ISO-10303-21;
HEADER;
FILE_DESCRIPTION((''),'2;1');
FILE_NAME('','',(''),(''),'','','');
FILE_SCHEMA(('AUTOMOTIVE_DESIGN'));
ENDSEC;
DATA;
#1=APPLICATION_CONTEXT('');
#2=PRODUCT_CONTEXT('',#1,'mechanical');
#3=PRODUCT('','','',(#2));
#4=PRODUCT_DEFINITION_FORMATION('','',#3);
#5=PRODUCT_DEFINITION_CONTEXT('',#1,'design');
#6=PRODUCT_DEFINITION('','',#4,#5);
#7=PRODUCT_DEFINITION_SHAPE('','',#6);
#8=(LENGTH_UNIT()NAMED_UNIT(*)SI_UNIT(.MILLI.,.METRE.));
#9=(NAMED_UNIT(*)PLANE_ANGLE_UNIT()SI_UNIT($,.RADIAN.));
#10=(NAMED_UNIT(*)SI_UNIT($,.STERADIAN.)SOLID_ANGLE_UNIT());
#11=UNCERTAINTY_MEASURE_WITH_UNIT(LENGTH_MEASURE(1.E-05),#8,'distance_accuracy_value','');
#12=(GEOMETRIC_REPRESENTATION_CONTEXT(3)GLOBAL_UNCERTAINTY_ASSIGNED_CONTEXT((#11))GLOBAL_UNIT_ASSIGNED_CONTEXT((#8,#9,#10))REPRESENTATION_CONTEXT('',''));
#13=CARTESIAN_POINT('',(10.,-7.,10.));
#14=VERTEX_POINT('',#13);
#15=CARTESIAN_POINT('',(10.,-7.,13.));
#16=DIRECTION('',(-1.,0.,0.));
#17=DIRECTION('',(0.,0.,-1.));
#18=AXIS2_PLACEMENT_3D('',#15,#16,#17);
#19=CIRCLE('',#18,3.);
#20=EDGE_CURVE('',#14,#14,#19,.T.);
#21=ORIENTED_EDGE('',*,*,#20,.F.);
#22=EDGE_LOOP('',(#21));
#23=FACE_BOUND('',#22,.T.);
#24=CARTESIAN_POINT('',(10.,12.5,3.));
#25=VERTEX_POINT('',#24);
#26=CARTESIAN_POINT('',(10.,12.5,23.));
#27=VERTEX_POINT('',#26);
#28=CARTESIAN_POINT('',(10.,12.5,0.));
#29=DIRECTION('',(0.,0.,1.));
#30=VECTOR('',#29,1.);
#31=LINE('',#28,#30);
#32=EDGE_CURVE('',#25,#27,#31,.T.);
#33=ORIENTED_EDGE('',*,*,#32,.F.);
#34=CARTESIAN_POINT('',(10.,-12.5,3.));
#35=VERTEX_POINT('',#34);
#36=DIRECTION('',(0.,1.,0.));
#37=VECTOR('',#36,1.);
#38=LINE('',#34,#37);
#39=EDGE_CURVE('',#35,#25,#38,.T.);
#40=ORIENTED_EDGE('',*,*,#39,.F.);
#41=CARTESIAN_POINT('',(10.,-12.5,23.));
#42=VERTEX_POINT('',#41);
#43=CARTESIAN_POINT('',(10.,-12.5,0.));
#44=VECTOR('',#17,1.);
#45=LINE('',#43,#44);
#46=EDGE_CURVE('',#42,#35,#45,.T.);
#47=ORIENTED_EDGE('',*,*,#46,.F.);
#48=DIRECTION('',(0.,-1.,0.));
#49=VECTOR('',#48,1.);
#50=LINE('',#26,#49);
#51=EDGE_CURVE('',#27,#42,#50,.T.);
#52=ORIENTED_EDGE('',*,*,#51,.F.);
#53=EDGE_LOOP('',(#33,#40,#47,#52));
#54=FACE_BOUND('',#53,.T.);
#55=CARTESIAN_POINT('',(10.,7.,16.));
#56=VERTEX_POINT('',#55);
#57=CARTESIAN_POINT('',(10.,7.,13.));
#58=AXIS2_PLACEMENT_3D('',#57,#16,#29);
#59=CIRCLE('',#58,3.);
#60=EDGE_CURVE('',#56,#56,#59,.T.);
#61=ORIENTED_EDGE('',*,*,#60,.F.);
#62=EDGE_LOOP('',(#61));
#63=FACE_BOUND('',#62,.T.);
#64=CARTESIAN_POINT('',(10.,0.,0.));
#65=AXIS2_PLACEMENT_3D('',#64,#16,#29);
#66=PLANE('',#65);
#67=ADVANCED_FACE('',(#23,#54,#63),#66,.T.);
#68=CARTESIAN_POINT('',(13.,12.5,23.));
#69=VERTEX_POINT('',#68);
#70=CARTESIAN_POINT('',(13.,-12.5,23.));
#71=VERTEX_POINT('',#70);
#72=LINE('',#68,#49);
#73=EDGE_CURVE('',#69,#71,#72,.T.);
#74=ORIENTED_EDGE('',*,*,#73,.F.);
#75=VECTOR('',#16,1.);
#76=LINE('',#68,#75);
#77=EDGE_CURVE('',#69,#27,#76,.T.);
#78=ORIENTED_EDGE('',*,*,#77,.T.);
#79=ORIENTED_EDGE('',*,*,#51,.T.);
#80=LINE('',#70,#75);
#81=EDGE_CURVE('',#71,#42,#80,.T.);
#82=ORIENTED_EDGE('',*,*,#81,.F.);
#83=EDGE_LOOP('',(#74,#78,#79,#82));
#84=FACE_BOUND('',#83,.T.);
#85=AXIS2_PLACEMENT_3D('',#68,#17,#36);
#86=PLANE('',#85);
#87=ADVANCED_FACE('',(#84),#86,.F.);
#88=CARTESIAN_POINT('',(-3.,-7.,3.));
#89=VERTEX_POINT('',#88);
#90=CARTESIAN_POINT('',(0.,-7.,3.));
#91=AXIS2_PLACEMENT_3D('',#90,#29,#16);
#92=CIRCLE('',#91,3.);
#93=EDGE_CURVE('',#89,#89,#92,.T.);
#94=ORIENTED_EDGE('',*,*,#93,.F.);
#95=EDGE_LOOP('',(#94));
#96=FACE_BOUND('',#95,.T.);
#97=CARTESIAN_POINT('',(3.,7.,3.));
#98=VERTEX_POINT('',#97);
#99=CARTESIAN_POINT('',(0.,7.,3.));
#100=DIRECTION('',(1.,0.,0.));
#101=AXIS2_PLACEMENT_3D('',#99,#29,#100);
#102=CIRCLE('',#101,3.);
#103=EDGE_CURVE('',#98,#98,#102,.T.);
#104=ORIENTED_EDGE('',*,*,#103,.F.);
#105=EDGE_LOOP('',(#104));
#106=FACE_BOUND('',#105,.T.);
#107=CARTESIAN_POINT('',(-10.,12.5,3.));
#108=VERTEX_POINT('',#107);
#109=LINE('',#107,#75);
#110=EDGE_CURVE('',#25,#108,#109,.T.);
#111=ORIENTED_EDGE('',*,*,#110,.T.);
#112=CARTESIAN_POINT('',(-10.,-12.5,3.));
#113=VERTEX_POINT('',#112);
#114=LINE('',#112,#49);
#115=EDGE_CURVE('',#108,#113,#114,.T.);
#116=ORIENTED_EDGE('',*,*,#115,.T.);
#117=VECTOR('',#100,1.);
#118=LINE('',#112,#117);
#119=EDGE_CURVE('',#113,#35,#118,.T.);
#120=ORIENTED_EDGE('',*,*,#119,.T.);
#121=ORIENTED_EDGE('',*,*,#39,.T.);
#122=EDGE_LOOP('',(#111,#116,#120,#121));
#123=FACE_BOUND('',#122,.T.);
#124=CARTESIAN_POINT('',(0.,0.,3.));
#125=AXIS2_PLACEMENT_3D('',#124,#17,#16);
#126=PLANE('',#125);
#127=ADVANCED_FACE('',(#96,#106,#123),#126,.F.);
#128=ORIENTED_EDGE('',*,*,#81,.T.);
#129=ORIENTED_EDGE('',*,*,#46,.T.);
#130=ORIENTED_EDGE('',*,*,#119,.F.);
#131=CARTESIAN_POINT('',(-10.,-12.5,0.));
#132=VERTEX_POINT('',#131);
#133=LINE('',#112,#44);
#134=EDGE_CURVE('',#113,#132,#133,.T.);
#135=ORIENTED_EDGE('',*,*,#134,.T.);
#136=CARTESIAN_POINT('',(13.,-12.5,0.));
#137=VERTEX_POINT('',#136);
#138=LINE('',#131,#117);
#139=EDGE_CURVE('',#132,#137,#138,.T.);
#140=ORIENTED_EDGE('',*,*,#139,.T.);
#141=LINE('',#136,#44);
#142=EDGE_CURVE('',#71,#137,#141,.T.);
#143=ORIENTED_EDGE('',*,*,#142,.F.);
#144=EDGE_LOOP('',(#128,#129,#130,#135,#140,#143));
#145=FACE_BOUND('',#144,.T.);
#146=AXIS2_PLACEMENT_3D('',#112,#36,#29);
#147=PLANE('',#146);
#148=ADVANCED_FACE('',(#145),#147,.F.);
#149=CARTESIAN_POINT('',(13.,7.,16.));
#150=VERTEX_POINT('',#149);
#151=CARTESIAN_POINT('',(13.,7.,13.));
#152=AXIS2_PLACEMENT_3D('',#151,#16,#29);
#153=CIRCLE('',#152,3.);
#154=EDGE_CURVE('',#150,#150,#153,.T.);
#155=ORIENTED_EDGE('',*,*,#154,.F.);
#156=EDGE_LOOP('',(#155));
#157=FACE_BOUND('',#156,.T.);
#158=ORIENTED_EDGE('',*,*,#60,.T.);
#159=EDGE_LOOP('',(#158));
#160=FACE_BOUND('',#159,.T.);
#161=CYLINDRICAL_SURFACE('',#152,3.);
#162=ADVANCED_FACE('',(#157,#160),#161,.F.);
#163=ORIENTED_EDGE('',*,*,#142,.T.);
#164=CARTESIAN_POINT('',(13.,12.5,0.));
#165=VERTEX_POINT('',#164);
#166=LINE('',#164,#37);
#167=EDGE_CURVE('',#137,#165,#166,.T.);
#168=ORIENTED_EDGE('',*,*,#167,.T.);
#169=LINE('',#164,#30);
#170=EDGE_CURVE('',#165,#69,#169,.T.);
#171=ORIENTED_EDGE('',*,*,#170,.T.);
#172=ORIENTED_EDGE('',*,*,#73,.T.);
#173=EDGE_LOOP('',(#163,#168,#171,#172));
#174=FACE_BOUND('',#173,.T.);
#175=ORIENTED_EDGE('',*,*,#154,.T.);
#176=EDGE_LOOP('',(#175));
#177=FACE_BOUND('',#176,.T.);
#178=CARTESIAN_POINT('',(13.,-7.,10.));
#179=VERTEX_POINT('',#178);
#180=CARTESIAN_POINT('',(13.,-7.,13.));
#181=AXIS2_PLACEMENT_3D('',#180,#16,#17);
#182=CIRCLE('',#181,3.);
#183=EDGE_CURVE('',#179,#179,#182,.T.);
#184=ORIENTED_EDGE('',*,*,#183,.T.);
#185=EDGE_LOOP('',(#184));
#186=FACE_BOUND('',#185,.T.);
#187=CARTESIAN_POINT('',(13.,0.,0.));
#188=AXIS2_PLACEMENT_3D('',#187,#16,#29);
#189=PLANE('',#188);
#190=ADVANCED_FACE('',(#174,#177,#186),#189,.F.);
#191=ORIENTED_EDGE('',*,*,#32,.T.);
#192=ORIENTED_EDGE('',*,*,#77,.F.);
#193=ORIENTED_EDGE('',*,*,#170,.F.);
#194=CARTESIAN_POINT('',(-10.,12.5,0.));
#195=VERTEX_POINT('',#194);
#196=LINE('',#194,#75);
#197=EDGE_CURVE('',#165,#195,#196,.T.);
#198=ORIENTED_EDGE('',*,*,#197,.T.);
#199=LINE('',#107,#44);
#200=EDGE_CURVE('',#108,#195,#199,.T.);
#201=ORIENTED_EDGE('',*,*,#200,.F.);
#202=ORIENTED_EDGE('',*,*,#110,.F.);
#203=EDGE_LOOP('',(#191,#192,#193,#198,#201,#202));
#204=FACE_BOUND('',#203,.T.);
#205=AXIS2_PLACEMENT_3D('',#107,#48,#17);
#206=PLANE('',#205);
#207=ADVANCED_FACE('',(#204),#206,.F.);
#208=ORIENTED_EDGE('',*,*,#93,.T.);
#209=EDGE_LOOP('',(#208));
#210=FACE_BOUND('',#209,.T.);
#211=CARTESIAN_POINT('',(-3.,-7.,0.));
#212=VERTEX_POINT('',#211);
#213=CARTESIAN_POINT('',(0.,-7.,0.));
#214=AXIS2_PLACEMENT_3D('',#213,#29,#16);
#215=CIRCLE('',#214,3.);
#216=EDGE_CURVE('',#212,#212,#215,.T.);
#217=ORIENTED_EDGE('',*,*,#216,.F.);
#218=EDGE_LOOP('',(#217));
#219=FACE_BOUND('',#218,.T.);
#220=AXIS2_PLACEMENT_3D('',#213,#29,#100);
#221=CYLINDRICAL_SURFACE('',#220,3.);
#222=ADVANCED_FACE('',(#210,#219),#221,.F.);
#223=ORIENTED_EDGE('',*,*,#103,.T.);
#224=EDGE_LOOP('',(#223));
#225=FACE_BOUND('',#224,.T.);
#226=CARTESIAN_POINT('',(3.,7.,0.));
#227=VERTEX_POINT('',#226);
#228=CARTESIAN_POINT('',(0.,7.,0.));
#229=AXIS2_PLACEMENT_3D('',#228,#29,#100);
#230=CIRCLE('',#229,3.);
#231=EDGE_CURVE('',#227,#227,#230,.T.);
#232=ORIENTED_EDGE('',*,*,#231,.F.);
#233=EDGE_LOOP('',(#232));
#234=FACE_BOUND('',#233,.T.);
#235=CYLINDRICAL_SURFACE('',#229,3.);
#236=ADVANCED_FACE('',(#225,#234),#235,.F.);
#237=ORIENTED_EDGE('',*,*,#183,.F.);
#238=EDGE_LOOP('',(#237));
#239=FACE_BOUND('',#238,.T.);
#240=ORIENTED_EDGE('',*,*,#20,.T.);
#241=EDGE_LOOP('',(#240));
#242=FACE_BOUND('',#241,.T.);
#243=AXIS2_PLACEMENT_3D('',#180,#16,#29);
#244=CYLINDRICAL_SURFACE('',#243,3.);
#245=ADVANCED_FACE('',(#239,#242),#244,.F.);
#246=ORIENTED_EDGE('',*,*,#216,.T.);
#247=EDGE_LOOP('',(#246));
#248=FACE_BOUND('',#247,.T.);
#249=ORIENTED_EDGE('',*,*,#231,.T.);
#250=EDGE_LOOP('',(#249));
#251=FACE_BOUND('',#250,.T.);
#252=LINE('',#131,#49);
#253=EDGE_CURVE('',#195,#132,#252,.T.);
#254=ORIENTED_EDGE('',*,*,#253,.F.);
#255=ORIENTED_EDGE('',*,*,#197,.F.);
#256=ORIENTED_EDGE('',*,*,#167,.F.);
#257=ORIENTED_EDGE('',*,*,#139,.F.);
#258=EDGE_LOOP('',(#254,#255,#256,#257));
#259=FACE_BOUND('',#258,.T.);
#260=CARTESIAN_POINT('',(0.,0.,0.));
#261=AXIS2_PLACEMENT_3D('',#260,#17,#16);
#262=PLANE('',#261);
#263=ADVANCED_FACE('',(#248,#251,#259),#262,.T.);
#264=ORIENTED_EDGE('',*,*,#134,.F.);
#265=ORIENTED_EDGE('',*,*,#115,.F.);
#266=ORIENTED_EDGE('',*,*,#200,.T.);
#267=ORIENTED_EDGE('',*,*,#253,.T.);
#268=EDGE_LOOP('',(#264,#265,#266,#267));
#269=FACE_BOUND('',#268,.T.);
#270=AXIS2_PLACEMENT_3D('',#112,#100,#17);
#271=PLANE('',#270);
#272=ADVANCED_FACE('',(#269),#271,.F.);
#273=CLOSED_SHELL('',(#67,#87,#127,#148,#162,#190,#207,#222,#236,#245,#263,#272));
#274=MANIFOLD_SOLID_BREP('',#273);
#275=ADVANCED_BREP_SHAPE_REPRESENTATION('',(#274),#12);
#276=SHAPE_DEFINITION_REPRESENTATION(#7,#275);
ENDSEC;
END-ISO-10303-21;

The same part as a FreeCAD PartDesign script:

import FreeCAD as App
import Part
import Sketcher

V = App.Vector


def add_polygon(sketch, points):
    """Adds a closed chain of lines whose ends are joined by coincident constraints."""
    first, n = sketch.GeometryCount, len(points)
    for a, b in zip(points, points[1:] + points[:1]):
        sketch.addGeometry(Part.LineSegment(App.Vector(*a, 0), App.Vector(*b, 0)), False)
    for i in range(n):
        sketch.addConstraint(Sketcher.Constraint("Coincident", first + i, 2, first + (i + 1) % n, 1))

doc = App.newDocument("Part")
body = doc.addObject("PartDesign::Body", "Body")

# Sketch on XY plane
sketch1 = body.newObject("Sketcher::SketchObject", "Sketch")
sketch1.AttachmentSupport = (doc.getObject("XY_Plane"), [""])
sketch1.MapMode = "FlatFace"
add_polygon(sketch1, [(-10, 12), (-10, -12), (10, -12), (10, 12)])  # lines 0-3
sketch1.addConstraint([
    Sketcher.Constraint("Vertical", 0),
    Sketcher.Constraint("Horizontal", 1),
    Sketcher.Constraint("Vertical", 2),
    Sketcher.Constraint("Horizontal", 3),
    Sketcher.Constraint("Symmetric", 0, 2, 2, 2, -1, 1),
    Sketcher.Constraint("DistanceX", 1, 1, 1, 2, 20.0),
    Sketcher.Constraint("DistanceY", 0, 2, 0, 1, 25.0),
])
pad1 = body.newObject("PartDesign::Pad", "Pad")
pad1.Profile = sketch1
pad1.Length = 3

# Sketch on YZ plane
sketch2 = body.newObject("Sketcher::SketchObject", "Sketch001")
sketch2.AttachmentSupport = (doc.getObject("YZ_Plane"), [""])
sketch2.MapMode = "FlatFace"
sketch2.AttachmentOffset = App.Placement(V(0, 0, 10), App.Rotation())
add_polygon(sketch2, [(12, 23), (-12, 23), (-12, 0), (12, 0)])  # lines 0-3
sketch2.addConstraint([
    Sketcher.Constraint("Horizontal", 0),
    Sketcher.Constraint("Vertical", 1),
    Sketcher.Constraint("Horizontal", 2),
    Sketcher.Constraint("Vertical", 3),
    Sketcher.Constraint("Symmetric", 1, 2, 2, 2, -1, 1),
    Sketcher.Constraint("DistanceX", 0, 2, 0, 1, 25.0),
    Sketcher.Constraint("DistanceY", 1, 2, 1, 1, 23.0),
])
pad2 = body.newObject("PartDesign::Pad", "Pad001")
pad2.Profile = sketch2
pad2.Length = 3

# Sketch on XY plane
sketch3 = body.newObject("Sketcher::SketchObject", "Sketch002")
sketch3.AttachmentSupport = (doc.getObject("XY_Plane"), [""])
sketch3.MapMode = "FlatFace"
sketch3.AttachmentOffset = App.Placement(V(0, 0, 3), App.Rotation())
sketch3.addGeometry([
    Part.Circle(V(0, 7, 0), V(0, 0, 1), 3),
    Part.Circle(V(0, -7, 0), V(0, 0, 1), 3),
], False)
sketch3.addConstraint([
    Sketcher.Constraint("Equal", 0, 1),
    Sketcher.Constraint("Symmetric", 0, 3, 1, 3, -1, 1),
    Sketcher.Constraint("PointOnObject", 0, 3, -2),
    Sketcher.Constraint("Diameter", 0, 6.0),
    Sketcher.Constraint("DistanceY", -1, 1, 0, 3, 7.0),
])
pocket1 = body.newObject("PartDesign::Pocket", "Pocket")
pocket1.Profile = sketch3
pocket1.Type = "ThroughAll"

# Sketch on YZ plane
sketch4 = body.newObject("Sketcher::SketchObject", "Sketch003")
sketch4.AttachmentSupport = (doc.getObject("YZ_Plane"), [""])
sketch4.MapMode = "FlatFace"
sketch4.AttachmentOffset = App.Placement(V(0, 0, 10), App.Rotation())
sketch4.addGeometry([
    Part.Circle(V(7, 13, 0), V(0, 0, 1), 3),
    Part.Circle(V(-7, 13, 0), V(0, 0, 1), 3),
], False)
sketch4.addConstraint([
    Sketcher.Constraint("Equal", 0, 1),
    Sketcher.Constraint("Symmetric", 0, 3, 1, 3, -2),
    Sketcher.Constraint("Diameter", 0, 6.0),
    Sketcher.Constraint("DistanceX", -1, 1, 0, 3, 7.0),
    Sketcher.Constraint("DistanceY", -1, 1, 0, 3, 13.0),
])
pocket2 = body.newObject("PartDesign::Pocket", "Pocket001")
pocket2.Profile = sketch4
pocket2.Type = "ThroughAll"
pocket2.Reversed = True

doc.recompute()
